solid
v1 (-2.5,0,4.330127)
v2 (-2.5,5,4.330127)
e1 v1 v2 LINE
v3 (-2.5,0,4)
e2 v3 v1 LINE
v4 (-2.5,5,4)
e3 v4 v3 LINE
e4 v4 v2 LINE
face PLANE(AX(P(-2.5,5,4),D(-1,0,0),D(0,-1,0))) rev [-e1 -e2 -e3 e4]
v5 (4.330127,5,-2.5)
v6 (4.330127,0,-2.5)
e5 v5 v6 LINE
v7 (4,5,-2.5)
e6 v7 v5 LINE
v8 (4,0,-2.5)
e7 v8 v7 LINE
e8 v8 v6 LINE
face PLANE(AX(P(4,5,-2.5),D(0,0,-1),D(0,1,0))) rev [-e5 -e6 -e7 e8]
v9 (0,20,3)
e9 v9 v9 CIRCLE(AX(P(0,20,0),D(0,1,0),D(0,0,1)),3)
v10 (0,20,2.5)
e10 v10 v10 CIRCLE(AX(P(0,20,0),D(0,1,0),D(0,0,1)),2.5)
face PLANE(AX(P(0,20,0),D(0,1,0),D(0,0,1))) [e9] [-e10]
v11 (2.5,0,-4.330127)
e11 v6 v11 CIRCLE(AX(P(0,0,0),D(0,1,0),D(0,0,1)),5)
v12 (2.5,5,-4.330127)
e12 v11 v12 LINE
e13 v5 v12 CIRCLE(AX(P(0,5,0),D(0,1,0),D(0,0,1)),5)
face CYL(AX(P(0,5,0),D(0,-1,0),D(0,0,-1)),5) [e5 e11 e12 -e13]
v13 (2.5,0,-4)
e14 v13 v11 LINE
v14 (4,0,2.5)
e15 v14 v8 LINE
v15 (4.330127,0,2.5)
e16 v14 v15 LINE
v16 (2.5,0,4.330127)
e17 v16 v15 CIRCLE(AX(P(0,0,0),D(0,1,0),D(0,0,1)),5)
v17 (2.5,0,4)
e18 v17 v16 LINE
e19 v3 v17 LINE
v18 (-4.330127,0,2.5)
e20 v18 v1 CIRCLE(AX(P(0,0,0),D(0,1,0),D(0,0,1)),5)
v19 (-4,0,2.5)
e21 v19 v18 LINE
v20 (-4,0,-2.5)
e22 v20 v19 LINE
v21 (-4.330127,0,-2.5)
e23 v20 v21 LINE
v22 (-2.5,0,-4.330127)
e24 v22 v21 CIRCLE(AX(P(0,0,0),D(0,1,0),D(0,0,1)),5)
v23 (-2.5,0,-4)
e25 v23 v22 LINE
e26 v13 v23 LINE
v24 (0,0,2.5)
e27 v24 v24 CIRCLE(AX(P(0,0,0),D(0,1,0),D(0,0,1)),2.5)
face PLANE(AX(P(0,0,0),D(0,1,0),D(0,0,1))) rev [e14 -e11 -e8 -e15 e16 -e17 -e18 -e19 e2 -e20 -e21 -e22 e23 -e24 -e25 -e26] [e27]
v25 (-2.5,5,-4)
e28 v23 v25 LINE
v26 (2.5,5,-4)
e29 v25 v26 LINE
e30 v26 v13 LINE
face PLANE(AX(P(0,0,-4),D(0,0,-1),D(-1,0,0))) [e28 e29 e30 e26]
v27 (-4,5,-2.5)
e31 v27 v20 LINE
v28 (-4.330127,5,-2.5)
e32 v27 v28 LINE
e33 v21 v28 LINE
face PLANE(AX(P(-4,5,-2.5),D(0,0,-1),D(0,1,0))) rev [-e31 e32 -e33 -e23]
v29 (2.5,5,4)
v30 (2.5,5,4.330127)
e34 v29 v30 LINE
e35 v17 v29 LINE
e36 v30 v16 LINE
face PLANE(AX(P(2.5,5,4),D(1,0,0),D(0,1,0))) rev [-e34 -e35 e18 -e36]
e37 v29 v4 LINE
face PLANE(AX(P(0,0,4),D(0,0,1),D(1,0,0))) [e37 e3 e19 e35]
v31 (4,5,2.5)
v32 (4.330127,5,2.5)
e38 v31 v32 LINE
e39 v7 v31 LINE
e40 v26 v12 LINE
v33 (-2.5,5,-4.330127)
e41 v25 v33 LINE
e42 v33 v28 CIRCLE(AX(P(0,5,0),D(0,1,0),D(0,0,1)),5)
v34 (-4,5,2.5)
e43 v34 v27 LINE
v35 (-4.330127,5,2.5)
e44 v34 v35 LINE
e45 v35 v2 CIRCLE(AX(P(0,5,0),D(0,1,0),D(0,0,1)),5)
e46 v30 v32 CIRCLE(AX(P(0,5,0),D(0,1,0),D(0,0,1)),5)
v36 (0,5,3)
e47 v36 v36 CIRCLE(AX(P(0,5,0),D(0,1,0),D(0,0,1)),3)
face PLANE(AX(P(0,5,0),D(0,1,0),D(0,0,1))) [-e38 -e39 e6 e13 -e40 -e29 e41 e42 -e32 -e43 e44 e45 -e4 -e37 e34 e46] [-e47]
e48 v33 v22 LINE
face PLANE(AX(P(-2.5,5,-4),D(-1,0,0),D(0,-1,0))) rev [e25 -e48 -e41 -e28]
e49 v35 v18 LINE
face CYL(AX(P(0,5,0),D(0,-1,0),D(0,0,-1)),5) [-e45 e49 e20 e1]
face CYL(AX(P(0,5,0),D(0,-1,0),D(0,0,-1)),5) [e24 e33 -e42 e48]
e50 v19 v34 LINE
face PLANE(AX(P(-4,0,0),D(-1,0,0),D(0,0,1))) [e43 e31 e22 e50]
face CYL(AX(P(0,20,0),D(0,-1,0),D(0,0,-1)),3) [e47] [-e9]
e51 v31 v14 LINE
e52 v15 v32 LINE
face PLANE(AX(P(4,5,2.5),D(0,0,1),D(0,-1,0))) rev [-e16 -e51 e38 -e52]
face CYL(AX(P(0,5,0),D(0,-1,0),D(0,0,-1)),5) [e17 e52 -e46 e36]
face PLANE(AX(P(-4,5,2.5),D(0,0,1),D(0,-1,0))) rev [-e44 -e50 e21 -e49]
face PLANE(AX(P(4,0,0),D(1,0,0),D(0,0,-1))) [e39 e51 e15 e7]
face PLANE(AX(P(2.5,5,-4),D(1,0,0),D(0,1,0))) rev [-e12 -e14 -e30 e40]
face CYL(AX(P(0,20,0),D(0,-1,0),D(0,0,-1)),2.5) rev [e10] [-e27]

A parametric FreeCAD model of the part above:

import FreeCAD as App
import Part
import Sketcher

V = App.Vector
Q = App.Units.Quantity


def add_polygon(sketch, points):
    """Adds a closed chain of lines whose ends are joined by coincident constraints."""
    first, n = sketch.GeometryCount, len(points)
    for a, b in zip(points, points[1:] + points[:1]):
        sketch.addGeometry(Part.LineSegment(App.Vector(*a, 0), App.Vector(*b, 0)), False)
    for i in range(n):
        sketch.addConstraint(Sketcher.Constraint("Coincident", first + i, 2, first + (i + 1) % n, 1))

doc = App.newDocument("Part")
body = doc.addObject("PartDesign::Body", "Body")

# Sketch on XZ plane
sketch1 = body.newObject("Sketcher::SketchObject", "Sketch")
sketch1.AttachmentSupport = (doc.getObject("XZ_Plane"), [""])
sketch1.MapMode = "FlatFace"
sketch1.addGeometry([
    Part.Circle(V(0, 0, 0), V(0, 0, 1), 3),
    Part.Circle(V(0, 0, 0), V(0, 0, 1), 2.5),
], False)
sketch1.addConstraint([
    Sketcher.Constraint("Coincident", 0, 3, -1, 1),
    Sketcher.Constraint("Coincident", 1, 3, -1, 1),
    Sketcher.Constraint("Diameter", 0, Q("6 mm")),
    Sketcher.Constraint("Diameter", 1, Q("5 mm")),
])
pad1 = body.newObject("PartDesign::Pad", "Pad")
pad1.Profile = sketch1
pad1.Length = 20
pad1.Reversed = True

# Sketch on XZ plane
sketch2 = body.newObject("Sketcher::SketchObject", "Sketch001")
sketch2.AttachmentSupport = (doc.getObject("XZ_Plane"), [""])
sketch2.MapMode = "FlatFace"
sketch2.addGeometry([
    Part.Circle(V(0, 0, 0), V(0, 0, 1), 5),
    Part.Circle(V(0, 0, 0), V(0, 0, 1), 3),
], False)
sketch2.addConstraint([
    Sketcher.Constraint("Coincident", 0, 3, -1, 1),
    Sketcher.Constraint("Coincident", 1, 3, -1, 1),
    Sketcher.Constraint("Diameter", 0, Q("10 mm")),
    Sketcher.Constraint("Diameter", 1, Q("6 mm")),
])
pad2 = body.newObject("PartDesign::Pad", "Pad001")
pad2.Profile = sketch2
pad2.Length = 5
pad2.Reversed = True

# Sketch on XY plane
sketch3 = body.newObject("Sketcher::SketchObject", "Sketch002")
sketch3.AttachmentSupport = (doc.getObject("XY_Plane"), [""])
sketch3.MapMode = "FlatFace"
sketch3.AttachmentOffset = App.Placement(V(0, 0, 5), App.Rotation())
add_polygon(sketch3, [(-2, 5), (-2, 0), (2, 0), (2, 5)])  # lines 0-3
sketch3.addConstraint([
    Sketcher.Constraint("Vertical", 0),
    Sketcher.Constraint("Horizontal", 1),
    Sketcher.Constraint("Vertical", 2),
    Sketcher.Constraint("Horizontal", 3),
    Sketcher.Constraint("Symmetric", 0, 2, 1, 2, -1, 1),
    Sketcher.Constraint("Equal", 3, 0),
    Sketcher.Constraint("DistanceX", 1, 1, 1, 2, Q("5 mm")),
])
pocket1 = body.newObject("PartDesign::Pocket", "Pocket")
pocket1.Profile = sketch3
pocket1.Length = 1

# Sketch on YZ plane
sketch4 = body.newObject("Sketcher::SketchObject", "Sketch003")
sketch4.AttachmentSupport = (doc.getObject("YZ_Plane"), [""])
sketch4.MapMode = "FlatFace"
sketch4.AttachmentOffset = App.Placement(V(0, 0, -5), App.Rotation())
add_polygon(sketch4, [(5, -2), (0, -2), (0, 2), (5, 2)])  # lines 0-3
sketch4.addConstraint([
    Sketcher.Constraint("Horizontal", 0),
    Sketcher.Constraint("Vertical", 1),
    Sketcher.Constraint("Horizontal", 2),
    Sketcher.Constraint("Vertical", 3),
    Sketcher.Constraint("Symmetric", 0, 2, 1, 2, -1, 1),
    Sketcher.Constraint("Equal", 2, 1),
    Sketcher.Constraint("DistanceX", 0, 2, 0, 1, Q("5 mm")),
])
pocket2 = body.newObject("PartDesign::Pocket", "Pocket001")
pocket2.Profile = sketch4
pocket2.Length = 1
pocket2.Reversed = True

# Sketch on XY plane
sketch5 = body.newObject("Sketcher::SketchObject", "Sketch004")
sketch5.AttachmentSupport = (doc.getObject("XY_Plane"), [""])
sketch5.MapMode = "FlatFace"
sketch5.AttachmentOffset = App.Placement(V(0, 0, -5), App.Rotation())
add_polygon(sketch5, [(2, 5), (2, 0), (-2, 0), (-2, 5)])  # lines 0-3
sketch5.addConstraint([
    Sketcher.Constraint("Vertical", 0),
    Sketcher.Constraint("Horizontal", 1),
    Sketcher.Constraint("Vertical", 2),
    Sketcher.Constraint("Horizontal", 3),
    Sketcher.Constraint("Symmetric", 0, 2, 1, 2, -1, 1),
    Sketcher.Constraint("Equal", 3, 0),
    Sketcher.Constraint("DistanceX", 1, 2, 1, 1, Q("5 mm")),
])
pocket3 = body.newObject("PartDesign::Pocket", "Pocket002")
pocket3.Profile = sketch5
pocket3.Length = 1
pocket3.Reversed = True

# Sketch on YZ plane
sketch6 = body.newObject("Sketcher::SketchObject", "Sketch005")
sketch6.AttachmentSupport = (doc.getObject("YZ_Plane"), [""])
sketch6.MapMode = "FlatFace"
sketch6.AttachmentOffset = App.Placement(V(0, 0, 5), App.Rotation())
add_polygon(sketch6, [(5, 2), (0, 2), (0, -2), (5, -2)])  # lines 0-3
sketch6.addConstraint([
    Sketcher.Constraint("Horizontal", 0),
    Sketcher.Constraint("Vertical", 1),
    Sketcher.Constraint("Horizontal", 2),
    Sketcher.Constraint("Vertical", 3),
    Sketcher.Constraint("Symmetric", 0, 2, 1, 2, -1, 1),
    Sketcher.Constraint("Equal", 2, 1),
    Sketcher.Constraint("DistanceX", 0, 2, 0, 1, Q("5 mm")),
])
pocket4 = body.newObject("PartDesign::Pocket", "Pocket003")
pocket4.Profile = sketch6
pocket4.Length = 1

doc.recompute()
